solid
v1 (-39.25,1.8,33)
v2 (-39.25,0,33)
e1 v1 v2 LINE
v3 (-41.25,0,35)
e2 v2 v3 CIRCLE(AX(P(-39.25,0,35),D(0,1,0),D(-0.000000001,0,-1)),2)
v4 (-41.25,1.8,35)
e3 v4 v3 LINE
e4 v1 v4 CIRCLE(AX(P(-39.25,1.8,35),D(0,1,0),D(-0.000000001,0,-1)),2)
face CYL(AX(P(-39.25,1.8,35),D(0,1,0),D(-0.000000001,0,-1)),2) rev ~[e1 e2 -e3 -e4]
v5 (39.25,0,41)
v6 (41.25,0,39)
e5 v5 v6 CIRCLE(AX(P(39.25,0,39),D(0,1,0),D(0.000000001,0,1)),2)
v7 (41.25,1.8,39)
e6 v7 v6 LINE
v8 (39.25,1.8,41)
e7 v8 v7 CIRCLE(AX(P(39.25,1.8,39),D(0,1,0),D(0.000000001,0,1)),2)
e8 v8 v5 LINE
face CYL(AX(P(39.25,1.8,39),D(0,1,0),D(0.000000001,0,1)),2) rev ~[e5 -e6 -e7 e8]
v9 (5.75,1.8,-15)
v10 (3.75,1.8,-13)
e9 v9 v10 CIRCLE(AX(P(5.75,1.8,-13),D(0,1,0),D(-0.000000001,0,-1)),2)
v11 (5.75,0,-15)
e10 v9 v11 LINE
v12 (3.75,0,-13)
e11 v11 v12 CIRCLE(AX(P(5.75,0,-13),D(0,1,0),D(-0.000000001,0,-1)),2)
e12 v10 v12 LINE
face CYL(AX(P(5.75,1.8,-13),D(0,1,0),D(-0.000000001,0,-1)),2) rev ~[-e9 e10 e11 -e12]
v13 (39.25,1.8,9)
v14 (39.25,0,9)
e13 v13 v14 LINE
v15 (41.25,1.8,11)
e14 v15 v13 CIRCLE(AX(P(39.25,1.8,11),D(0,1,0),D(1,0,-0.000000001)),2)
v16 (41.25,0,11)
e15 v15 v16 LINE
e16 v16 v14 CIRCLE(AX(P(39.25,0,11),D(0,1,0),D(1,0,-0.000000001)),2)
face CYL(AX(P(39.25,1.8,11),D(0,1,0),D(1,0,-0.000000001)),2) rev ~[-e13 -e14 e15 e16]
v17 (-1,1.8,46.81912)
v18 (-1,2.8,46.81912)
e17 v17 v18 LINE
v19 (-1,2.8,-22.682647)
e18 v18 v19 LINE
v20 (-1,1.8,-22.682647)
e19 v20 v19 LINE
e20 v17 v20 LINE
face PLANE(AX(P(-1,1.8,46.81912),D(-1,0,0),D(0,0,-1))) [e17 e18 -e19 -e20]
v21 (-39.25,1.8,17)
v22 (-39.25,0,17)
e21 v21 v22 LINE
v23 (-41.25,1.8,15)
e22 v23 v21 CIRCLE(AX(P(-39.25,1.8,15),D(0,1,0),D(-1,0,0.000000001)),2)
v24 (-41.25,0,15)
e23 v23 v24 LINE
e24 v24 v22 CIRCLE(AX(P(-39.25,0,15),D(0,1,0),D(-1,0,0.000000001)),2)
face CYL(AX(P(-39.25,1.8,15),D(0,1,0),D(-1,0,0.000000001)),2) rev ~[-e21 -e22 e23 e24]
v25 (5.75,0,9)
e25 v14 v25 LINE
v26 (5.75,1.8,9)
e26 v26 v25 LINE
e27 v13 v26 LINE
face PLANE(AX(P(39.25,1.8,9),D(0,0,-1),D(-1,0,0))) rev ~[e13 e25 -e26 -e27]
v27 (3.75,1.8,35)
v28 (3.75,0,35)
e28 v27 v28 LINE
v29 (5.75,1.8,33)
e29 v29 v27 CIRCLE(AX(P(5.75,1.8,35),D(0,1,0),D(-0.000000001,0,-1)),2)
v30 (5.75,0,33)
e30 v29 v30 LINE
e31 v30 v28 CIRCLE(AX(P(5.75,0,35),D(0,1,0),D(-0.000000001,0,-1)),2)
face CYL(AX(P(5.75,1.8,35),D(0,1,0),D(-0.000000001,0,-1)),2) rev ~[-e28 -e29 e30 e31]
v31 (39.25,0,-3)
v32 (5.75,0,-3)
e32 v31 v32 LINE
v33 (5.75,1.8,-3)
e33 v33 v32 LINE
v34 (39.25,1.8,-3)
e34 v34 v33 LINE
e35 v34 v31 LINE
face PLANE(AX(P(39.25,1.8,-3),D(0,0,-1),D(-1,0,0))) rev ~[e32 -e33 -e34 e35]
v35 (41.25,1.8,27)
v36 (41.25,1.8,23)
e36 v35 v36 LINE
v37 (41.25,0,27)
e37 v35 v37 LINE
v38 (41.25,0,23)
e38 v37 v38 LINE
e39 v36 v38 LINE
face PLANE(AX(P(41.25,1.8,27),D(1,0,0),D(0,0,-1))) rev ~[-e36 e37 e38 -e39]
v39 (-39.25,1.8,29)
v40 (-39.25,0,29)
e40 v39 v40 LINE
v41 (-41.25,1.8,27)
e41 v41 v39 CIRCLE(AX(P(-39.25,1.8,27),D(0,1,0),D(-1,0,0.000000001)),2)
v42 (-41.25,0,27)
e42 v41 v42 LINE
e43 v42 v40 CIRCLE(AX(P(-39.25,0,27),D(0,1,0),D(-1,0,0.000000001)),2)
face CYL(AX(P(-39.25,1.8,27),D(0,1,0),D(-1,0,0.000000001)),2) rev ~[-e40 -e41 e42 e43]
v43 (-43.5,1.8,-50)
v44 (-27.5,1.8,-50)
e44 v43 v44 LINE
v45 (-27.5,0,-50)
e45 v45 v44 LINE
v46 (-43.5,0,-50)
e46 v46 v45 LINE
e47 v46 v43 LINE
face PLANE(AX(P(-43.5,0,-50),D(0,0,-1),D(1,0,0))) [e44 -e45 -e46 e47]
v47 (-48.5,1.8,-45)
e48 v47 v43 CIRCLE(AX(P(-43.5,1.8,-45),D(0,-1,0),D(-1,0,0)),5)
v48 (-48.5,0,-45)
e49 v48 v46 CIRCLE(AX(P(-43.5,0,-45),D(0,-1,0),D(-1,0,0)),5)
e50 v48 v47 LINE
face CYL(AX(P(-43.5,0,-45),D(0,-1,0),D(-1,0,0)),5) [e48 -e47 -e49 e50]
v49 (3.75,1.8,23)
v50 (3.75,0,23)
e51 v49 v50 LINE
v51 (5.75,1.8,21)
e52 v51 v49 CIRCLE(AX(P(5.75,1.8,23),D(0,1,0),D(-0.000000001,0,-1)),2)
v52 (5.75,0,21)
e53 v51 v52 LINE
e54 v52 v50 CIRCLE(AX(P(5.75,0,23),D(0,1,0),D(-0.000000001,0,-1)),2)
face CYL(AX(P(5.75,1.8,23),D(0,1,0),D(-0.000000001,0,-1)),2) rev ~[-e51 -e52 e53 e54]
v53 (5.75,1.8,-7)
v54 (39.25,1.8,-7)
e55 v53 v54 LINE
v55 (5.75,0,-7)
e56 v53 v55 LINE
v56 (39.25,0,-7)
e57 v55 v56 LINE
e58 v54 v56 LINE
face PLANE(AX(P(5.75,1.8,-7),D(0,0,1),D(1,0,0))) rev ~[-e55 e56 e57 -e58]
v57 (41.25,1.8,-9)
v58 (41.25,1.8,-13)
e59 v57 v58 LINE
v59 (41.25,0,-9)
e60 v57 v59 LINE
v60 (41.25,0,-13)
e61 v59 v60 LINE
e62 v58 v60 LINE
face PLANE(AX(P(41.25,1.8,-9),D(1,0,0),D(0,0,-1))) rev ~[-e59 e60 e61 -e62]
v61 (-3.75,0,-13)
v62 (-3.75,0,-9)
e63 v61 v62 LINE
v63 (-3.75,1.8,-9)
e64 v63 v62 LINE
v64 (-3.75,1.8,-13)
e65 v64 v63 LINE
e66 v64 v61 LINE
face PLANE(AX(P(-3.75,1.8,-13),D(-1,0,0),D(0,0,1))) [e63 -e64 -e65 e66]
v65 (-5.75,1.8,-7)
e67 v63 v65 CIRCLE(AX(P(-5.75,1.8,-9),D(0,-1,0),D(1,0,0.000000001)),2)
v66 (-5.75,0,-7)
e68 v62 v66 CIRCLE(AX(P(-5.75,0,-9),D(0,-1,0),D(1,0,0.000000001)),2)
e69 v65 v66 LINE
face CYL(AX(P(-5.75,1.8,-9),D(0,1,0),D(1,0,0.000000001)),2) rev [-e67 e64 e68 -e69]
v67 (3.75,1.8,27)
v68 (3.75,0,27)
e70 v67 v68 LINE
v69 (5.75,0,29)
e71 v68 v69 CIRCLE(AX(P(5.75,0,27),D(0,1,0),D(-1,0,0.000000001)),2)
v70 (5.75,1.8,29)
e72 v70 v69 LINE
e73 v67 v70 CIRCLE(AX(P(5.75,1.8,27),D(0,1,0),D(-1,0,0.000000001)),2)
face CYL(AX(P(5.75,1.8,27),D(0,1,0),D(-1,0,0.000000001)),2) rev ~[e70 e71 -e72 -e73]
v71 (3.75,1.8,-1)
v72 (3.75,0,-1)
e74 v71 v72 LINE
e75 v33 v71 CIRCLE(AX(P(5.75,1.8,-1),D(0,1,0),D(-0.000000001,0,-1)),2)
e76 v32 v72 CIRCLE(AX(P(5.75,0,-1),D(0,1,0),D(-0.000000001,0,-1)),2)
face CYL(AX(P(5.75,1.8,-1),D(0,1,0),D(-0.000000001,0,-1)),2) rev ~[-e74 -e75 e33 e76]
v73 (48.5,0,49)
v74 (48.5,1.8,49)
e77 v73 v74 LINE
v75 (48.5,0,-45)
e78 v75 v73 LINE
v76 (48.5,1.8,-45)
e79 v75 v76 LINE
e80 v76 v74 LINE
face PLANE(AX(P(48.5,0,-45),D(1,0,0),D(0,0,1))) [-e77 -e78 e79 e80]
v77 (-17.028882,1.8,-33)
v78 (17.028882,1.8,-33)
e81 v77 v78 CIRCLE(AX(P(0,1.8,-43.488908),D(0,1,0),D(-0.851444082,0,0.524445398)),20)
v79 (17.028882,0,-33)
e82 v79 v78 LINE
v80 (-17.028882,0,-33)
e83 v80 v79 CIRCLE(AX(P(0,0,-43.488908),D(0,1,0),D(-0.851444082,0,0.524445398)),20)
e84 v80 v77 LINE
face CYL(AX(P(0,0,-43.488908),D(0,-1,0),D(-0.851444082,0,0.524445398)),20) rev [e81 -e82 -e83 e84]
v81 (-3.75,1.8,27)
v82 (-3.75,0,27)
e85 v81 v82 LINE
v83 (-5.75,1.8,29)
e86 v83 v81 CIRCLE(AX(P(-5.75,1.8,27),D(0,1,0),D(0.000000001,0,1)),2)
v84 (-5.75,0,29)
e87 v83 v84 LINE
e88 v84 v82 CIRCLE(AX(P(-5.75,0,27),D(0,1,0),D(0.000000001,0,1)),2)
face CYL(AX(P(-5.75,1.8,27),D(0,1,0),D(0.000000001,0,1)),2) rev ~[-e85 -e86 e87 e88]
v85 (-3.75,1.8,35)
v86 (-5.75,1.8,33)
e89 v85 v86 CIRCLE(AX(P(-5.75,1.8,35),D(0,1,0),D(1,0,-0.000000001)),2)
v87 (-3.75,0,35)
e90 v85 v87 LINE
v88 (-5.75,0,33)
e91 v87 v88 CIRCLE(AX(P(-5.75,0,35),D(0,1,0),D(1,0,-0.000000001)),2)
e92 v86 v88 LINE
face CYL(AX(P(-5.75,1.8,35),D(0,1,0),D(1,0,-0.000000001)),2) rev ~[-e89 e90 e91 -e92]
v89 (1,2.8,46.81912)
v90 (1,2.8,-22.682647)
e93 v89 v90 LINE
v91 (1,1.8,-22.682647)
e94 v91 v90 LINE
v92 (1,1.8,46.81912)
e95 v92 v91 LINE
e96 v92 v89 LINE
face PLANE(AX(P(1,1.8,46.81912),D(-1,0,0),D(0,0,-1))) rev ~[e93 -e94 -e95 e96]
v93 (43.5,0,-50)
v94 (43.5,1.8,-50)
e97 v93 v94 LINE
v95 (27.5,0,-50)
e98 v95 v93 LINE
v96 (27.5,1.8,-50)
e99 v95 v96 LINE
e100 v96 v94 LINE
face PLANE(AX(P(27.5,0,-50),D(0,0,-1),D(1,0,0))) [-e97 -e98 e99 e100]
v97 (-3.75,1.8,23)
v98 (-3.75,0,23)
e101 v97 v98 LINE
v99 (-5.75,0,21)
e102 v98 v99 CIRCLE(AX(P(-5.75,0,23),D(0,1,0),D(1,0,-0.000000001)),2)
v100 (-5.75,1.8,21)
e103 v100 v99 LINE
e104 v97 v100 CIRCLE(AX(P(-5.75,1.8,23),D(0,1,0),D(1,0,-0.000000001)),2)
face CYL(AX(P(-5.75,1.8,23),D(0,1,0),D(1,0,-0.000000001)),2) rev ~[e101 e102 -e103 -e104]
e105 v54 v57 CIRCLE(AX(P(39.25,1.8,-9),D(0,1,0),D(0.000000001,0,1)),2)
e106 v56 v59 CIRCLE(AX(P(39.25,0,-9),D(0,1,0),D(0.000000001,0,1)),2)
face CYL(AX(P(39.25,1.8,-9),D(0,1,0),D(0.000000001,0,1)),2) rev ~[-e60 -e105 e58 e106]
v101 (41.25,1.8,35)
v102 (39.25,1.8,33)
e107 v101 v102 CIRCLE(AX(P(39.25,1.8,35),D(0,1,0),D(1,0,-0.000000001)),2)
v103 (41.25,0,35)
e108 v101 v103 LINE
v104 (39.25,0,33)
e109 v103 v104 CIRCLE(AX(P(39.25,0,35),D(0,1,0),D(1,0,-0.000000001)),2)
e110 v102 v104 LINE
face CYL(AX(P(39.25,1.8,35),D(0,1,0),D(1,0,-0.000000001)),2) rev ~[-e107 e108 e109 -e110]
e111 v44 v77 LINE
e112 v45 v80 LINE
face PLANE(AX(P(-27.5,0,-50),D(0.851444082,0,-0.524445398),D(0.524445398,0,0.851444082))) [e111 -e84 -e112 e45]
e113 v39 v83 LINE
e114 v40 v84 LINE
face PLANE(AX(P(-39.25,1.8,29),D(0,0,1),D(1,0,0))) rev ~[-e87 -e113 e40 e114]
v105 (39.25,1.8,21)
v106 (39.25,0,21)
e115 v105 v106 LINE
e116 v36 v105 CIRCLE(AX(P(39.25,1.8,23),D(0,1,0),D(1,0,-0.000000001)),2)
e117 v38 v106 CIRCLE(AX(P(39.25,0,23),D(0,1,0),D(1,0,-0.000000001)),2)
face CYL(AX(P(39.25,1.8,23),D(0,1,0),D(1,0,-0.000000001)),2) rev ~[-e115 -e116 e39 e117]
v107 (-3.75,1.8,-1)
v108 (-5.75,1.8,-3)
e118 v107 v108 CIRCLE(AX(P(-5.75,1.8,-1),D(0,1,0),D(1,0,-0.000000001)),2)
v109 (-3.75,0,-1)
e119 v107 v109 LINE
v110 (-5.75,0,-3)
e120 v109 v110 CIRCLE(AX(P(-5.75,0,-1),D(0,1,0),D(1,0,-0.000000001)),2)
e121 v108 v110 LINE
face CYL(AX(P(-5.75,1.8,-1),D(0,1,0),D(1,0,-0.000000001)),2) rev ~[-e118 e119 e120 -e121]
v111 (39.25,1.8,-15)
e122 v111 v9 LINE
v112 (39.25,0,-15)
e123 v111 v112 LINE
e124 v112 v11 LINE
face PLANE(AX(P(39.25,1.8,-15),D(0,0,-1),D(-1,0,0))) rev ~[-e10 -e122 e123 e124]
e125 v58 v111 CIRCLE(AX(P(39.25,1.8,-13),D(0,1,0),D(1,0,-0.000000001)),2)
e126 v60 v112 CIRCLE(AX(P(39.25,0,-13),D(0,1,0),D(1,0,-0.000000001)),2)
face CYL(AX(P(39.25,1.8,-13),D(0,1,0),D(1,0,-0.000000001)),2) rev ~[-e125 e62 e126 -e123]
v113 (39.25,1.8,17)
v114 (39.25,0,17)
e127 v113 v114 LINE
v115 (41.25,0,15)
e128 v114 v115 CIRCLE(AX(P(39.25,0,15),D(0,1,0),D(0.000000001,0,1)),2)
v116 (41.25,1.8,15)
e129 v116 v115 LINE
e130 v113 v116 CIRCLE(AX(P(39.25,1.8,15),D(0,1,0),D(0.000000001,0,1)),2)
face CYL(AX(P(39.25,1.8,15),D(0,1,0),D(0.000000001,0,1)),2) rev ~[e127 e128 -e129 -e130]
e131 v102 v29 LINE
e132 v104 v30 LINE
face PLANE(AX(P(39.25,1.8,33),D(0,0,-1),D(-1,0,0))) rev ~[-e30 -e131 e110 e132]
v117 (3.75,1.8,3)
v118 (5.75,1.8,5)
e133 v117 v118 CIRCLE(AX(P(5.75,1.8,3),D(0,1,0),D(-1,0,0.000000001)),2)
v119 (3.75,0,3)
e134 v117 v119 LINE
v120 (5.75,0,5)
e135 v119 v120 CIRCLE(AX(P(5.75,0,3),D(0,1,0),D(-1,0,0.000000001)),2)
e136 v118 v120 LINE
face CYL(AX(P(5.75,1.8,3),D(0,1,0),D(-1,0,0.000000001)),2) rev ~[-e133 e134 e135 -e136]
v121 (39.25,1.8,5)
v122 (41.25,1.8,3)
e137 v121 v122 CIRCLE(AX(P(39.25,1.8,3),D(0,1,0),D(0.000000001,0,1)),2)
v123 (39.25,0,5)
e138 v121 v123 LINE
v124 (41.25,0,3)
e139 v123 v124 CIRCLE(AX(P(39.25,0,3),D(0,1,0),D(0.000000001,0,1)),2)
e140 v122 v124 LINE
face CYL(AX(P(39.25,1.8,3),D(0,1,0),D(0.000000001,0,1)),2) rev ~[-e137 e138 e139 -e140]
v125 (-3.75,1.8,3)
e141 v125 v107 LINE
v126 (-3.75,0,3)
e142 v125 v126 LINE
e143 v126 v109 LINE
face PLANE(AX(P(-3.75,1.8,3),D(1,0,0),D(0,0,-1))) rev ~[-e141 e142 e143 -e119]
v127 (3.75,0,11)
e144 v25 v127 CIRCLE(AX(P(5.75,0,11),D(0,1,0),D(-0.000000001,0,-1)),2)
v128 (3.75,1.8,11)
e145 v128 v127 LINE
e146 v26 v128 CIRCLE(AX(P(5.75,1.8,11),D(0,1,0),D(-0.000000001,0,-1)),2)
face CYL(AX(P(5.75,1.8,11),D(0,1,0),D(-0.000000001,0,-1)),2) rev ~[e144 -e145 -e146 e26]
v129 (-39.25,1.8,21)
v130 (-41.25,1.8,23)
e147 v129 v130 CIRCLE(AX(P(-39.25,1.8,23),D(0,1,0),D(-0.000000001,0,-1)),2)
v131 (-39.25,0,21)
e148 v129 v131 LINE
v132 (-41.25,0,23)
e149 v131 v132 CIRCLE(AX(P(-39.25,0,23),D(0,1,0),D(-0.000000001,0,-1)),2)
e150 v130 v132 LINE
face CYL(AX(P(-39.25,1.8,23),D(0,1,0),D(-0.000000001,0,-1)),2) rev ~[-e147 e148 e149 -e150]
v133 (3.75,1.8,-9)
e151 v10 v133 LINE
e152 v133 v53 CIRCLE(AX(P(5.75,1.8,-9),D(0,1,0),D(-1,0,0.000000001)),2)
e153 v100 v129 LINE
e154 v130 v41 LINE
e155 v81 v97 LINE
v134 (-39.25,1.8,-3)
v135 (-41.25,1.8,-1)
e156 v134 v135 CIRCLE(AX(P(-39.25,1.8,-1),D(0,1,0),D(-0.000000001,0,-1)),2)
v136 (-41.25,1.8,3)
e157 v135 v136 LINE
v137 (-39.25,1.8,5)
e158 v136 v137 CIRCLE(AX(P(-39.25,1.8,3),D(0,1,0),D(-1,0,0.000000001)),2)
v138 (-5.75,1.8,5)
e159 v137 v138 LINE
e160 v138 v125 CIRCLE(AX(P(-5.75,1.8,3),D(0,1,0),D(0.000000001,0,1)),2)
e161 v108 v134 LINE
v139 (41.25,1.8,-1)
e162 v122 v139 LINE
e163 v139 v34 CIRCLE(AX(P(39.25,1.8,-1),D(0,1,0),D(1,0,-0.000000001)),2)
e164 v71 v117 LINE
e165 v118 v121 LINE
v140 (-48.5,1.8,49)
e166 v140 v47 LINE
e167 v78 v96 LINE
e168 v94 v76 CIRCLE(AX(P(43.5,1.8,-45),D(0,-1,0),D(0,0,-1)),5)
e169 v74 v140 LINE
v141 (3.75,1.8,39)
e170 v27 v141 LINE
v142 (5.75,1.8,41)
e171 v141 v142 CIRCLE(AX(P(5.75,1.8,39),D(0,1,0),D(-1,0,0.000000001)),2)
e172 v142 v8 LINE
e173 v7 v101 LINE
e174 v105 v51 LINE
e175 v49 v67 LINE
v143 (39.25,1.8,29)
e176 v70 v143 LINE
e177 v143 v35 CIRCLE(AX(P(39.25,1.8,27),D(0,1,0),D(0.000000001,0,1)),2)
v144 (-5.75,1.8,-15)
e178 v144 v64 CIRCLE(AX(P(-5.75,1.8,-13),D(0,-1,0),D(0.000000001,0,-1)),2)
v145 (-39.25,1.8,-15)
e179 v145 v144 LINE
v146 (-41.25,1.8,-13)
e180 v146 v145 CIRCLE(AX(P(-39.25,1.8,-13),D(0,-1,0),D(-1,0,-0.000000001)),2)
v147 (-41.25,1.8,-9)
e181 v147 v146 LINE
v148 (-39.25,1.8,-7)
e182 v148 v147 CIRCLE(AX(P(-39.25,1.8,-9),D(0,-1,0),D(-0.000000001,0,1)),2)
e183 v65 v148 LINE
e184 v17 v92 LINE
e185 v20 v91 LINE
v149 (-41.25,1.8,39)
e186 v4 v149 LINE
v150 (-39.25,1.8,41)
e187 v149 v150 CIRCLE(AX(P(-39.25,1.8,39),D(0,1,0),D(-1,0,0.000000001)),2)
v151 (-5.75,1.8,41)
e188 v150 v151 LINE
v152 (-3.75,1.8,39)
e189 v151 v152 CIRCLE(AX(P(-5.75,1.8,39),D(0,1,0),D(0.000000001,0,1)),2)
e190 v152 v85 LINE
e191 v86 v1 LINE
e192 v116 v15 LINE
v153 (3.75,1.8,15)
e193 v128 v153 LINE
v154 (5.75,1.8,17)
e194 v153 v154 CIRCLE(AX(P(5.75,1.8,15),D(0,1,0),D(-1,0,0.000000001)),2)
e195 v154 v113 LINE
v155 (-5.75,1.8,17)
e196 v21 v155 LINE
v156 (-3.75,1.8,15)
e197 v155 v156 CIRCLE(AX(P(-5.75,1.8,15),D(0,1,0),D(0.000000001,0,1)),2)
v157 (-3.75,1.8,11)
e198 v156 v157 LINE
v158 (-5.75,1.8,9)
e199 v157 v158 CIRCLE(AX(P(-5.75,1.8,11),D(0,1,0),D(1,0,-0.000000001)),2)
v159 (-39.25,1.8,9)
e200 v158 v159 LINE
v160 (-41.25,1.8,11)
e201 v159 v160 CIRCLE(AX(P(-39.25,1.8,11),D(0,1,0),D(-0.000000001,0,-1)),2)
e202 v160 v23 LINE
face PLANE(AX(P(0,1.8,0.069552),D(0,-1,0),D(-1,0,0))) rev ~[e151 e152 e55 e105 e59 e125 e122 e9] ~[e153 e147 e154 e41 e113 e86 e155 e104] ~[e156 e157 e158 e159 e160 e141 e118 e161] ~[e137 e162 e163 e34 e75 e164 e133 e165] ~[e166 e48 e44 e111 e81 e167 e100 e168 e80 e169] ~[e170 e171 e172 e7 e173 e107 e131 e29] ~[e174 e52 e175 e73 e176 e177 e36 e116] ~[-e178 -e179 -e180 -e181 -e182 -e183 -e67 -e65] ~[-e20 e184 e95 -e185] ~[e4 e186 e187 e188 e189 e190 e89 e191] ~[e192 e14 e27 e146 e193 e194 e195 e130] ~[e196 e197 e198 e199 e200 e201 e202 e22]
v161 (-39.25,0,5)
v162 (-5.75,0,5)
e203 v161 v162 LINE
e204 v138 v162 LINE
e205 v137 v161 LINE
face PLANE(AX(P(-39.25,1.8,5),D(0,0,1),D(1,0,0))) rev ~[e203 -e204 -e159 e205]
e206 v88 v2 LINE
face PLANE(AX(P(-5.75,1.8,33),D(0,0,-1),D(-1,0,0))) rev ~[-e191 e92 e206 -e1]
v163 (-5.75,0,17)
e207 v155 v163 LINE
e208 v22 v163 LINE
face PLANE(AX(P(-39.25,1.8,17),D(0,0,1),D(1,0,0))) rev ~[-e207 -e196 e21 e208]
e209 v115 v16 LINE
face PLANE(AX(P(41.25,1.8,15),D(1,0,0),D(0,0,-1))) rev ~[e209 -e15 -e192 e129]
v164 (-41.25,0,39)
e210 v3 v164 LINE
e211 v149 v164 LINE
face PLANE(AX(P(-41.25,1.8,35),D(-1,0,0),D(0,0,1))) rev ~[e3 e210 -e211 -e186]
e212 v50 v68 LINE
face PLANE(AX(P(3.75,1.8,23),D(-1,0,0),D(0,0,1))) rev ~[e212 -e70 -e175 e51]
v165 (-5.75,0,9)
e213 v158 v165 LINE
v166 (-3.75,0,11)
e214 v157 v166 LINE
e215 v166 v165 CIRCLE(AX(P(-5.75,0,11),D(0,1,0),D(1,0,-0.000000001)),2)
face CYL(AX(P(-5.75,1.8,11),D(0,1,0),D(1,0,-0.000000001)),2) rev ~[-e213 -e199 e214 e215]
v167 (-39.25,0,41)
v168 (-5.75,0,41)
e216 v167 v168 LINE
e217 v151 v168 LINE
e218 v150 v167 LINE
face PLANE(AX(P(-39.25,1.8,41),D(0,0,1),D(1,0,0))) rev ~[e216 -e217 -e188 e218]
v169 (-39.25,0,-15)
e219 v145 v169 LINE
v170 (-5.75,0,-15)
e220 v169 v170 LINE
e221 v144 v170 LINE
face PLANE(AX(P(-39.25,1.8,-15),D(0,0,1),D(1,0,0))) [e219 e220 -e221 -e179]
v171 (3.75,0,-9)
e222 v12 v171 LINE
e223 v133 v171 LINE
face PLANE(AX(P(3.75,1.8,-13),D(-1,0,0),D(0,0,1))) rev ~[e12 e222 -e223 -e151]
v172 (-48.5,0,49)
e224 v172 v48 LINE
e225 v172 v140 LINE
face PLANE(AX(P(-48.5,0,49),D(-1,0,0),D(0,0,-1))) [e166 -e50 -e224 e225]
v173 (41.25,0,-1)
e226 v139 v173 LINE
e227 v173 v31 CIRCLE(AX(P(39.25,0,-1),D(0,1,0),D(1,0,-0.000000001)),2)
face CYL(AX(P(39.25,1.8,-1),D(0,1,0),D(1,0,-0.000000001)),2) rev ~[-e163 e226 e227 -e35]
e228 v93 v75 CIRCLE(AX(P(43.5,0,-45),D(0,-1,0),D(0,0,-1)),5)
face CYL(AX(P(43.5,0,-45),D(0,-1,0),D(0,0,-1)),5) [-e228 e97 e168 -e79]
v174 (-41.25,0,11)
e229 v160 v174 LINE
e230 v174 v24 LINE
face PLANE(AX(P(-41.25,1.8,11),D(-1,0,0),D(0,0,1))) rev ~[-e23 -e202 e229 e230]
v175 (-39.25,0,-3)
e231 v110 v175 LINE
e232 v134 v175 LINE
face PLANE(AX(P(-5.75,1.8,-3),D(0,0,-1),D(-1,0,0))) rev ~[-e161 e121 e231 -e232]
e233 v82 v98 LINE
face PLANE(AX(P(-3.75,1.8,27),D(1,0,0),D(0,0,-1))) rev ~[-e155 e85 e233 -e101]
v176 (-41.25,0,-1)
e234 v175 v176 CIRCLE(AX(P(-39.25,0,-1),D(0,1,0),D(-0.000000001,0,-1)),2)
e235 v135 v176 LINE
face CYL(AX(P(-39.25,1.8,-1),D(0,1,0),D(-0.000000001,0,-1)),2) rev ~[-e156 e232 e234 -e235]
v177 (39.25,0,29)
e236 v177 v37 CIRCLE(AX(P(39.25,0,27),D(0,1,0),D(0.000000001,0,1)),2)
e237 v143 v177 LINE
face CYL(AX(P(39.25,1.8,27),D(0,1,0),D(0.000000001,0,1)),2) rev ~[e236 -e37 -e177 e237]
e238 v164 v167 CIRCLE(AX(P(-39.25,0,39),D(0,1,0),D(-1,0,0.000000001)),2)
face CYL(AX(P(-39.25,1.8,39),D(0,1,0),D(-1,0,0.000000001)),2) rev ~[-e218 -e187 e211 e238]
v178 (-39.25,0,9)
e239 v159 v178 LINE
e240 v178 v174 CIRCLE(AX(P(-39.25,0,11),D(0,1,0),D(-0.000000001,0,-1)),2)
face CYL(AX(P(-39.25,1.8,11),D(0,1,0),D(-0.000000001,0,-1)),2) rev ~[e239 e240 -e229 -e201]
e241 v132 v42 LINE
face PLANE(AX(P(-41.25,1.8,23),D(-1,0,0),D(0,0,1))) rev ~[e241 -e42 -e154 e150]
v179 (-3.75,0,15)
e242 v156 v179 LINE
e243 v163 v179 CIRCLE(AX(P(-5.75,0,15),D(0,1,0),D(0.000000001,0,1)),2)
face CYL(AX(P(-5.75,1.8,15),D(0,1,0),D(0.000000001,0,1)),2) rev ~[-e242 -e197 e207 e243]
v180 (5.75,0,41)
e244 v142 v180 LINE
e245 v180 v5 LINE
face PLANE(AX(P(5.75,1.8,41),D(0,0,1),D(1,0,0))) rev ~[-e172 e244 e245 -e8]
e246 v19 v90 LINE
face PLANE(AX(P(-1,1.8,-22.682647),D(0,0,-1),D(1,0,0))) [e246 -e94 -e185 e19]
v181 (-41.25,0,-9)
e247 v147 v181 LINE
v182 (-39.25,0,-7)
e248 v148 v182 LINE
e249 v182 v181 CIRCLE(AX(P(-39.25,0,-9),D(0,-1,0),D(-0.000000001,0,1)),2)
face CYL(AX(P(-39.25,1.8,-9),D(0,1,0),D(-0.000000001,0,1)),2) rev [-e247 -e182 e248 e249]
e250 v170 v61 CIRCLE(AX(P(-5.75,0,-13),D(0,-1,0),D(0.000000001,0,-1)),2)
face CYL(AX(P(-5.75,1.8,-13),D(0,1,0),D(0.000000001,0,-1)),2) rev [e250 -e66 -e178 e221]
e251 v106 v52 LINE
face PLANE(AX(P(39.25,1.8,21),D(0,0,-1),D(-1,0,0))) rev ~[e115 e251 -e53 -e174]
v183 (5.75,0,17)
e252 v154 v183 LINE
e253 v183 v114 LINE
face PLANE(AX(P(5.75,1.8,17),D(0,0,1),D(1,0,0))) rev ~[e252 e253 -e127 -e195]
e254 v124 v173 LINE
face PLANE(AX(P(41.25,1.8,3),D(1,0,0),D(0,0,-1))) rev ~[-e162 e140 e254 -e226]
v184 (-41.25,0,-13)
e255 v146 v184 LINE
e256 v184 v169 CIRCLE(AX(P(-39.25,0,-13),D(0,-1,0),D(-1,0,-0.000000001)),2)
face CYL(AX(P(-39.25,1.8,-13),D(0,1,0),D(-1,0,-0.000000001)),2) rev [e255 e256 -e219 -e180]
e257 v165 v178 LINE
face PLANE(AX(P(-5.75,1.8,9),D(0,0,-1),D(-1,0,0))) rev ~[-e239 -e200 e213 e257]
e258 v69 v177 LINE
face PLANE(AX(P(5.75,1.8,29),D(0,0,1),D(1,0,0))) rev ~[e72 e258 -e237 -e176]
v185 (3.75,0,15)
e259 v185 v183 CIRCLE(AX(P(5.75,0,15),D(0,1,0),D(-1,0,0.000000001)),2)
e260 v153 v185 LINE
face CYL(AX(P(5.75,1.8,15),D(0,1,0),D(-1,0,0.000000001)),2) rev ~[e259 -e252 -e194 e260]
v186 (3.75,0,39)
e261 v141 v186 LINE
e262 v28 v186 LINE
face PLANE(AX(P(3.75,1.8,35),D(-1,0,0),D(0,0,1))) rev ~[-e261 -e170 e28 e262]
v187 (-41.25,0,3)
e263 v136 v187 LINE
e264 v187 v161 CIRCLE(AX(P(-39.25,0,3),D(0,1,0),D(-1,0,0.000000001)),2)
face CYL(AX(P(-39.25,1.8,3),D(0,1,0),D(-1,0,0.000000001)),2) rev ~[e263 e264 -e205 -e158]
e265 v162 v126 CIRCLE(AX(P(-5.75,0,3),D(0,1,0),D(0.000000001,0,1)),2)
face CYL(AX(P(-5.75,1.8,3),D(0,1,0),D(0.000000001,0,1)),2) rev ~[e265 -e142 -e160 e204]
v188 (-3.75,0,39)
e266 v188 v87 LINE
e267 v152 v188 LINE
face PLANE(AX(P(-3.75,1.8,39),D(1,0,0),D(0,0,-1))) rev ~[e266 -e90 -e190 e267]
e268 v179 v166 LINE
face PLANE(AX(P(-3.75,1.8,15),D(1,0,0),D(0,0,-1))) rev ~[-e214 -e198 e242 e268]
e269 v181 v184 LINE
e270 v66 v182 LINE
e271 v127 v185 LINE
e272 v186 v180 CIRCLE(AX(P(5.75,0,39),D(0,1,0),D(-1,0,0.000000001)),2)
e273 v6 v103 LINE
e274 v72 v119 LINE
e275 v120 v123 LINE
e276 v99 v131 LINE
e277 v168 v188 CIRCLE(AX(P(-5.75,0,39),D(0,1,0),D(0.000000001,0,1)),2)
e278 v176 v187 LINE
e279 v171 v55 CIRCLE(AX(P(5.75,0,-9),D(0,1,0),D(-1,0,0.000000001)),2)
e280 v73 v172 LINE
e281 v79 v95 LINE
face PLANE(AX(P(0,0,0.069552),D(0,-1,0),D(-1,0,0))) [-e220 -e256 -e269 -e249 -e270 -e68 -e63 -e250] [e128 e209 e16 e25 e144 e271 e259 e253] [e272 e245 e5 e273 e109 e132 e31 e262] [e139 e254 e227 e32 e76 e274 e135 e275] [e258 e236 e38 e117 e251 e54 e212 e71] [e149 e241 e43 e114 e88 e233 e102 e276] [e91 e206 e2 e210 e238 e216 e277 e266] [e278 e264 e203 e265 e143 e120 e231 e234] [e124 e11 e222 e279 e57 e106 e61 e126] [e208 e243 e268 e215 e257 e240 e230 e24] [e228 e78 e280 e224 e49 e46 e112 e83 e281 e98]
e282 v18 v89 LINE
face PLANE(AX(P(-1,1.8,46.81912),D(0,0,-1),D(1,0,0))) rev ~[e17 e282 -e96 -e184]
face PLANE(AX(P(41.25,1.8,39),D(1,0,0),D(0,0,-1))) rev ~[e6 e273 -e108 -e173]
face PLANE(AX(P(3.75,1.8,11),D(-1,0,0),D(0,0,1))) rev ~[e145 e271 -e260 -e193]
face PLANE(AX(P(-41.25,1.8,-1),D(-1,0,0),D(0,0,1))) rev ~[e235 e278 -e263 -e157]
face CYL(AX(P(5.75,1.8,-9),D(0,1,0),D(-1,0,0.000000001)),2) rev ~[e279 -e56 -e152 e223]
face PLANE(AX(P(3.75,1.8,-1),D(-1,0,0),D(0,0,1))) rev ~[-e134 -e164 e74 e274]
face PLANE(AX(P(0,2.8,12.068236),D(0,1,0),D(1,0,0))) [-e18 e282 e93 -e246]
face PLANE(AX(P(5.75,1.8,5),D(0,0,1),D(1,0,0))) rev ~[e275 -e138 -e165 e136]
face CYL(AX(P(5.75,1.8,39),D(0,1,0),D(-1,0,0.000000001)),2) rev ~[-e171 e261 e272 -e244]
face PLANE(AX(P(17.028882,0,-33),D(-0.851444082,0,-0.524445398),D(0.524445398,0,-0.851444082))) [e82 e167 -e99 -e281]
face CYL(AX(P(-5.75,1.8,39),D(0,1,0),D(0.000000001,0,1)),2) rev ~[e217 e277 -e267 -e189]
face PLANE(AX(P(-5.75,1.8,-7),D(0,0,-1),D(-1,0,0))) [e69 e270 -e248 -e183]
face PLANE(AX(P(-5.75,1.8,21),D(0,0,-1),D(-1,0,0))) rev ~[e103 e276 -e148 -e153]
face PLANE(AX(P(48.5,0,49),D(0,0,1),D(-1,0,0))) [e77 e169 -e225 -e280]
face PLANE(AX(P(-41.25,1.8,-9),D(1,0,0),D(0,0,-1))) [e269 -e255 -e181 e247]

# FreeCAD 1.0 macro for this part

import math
import FreeCAD as App
import Part
import Sketcher

V = App.Vector
Q = App.Units.Quantity


def add_polygon(sketch, points):
    """Adds a closed chain of lines whose ends are joined by coincident constraints."""
    first, n = sketch.GeometryCount, len(points)
    for a, b in zip(points, points[1:] + points[:1]):
        sketch.addGeometry(Part.LineSegment(App.Vector(*a, 0), App.Vector(*b, 0)), False)
    for i in range(n):
        sketch.addConstraint(Sketcher.Constraint("Coincident", first + i, 2, first + (i + 1) % n, 1))

doc = App.newDocument("Part")
body = doc.addObject("PartDesign::Body", "Body")

# Sketch on XZ plane
sketch1 = doc.addObject("Sketcher::SketchObject", "Sketch")
body.addObject(sketch1)
sketch1.AttachmentSupport = (doc.XZ_Plane, [""])
sketch1.MapMode = "FlatFace"
sketch1.addGeometry(Part.LineSegment(V(-28, -50, 0), V(-44, -50, 0)), False)
sketch1.addGeometry(Part.ArcOfCircle(Part.Circle(V(-44, -45, 0), V(0, 0, 1), 5), math.radians(180), math.radians(270)), False)
sketch1.addGeometry(Part.LineSegment(V(-48, -45, 0), V(-48, 49, 0)), False)
sketch1.addGeometry(Part.LineSegment(V(-48, 49, 0), V(48, 49, 0)), False)
sketch1.addGeometry(Part.LineSegment(V(48, 49, 0), V(48, -45, 0)), False)
sketch1.addGeometry(Part.ArcOfCircle(Part.Circle(V(44, -45, 0), V(0, 0, 1), 5), math.radians(-90), math.radians(0)), False)
sketch1.addGeometry(Part.LineSegment(V(44, -50, 0), V(28, -50, 0)), False)
sketch1.addGeometry(Part.LineSegment(V(28, -50, 0), V(17, -33, 0)), False)
sketch1.addGeometry(Part.ArcOfCircle(Part.Circle(V(0, -43, 0), V(0, 0, 1), 20), math.radians(32), math.radians(148)), False)
sketch1.addGeometry(Part.LineSegment(V(-17, -33, 0), V(-28, -50, 0)), False)
sketch1.addConstraint(Sketcher.Constraint("Tangent", 0, 2, 1, 2))
sketch1.addConstraint(Sketcher.Constraint("Tangent", 1, 1, 2, 1))
sketch1.addConstraint(Sketcher.Constraint("Coincident", 2, 2, 3, 1))
sketch1.addConstraint(Sketcher.Constraint("Coincident", 3, 2, 4, 1))
sketch1.addConstraint(Sketcher.Constraint("Tangent", 4, 2, 5, 2))
sketch1.addConstraint(Sketcher.Constraint("Tangent", 5, 1, 6, 1))
sketch1.addConstraint(Sketcher.Constraint("Coincident", 6, 2, 7, 1))
sketch1.addConstraint(Sketcher.Constraint("Tangent", 7, 2, 8, 1))
sketch1.addConstraint(Sketcher.Constraint("Tangent", 8, 2, 9, 1))
sketch1.addConstraint(Sketcher.Constraint("Coincident", 9, 2, 0, 1))
sketch1.addConstraint(Sketcher.Constraint("Horizontal", 0))
sketch1.addConstraint(Sketcher.Constraint("Vertical", 2))
sketch1.addConstraint(Sketcher.Constraint("Horizontal", 3))
sketch1.addConstraint(Sketcher.Constraint("Vertical", 4))
sketch1.addConstraint(Sketcher.Constraint("Horizontal", 6))
sketch1.addConstraint(Sketcher.Constraint("Equal", 1, 5))
sketch1.addConstraint(Sketcher.Constraint("Symmetric", 1, 3, 5, 3, -2))
sketch1.addConstraint(Sketcher.Constraint("Symmetric", 7, 2, 8, 2, -2))
sketch1.addConstraint(Sketcher.Constraint("Radius", 1, Q("5 mm")))
sketch1.addConstraint(Sketcher.Constraint("Radius", 8, Q("20 mm")))
sketch1.addConstraint(Sketcher.Constraint("DistanceX", 0, 2, 0, 1, Q("16 mm")))
sketch1.addConstraint(Sketcher.Constraint("DistanceX", 3, 1, 3, 2, Q("97 mm")))
sketch1.addConstraint(Sketcher.Constraint("DistanceY", 2, 1, 2, 2, Q("94 mm")))
sketch1.addConstraint(Sketcher.Constraint("DistanceY", 1, 3, -1, 1, Q("45 mm")))
sketch1.addConstraint(Sketcher.Constraint("DistanceY", 7, 2, -1, 1, Q("33 mm")))
pad1 = doc.addObject("PartDesign::Pad", "Pad")
body.addObject(pad1)
pad1.Profile = sketch1
pad1.Length = 1.8
pad1.Reversed = True

# Sketch on XZ plane
sketch2 = doc.addObject("Sketcher::SketchObject", "Sketch001")
body.addObject(sketch2)
sketch2.AttachmentSupport = (doc.XZ_Plane, [""])
sketch2.MapMode = "FlatFace"
sketch2.AttachmentOffset = App.Placement(V(0, 0, -1.8), App.Rotation())
sketch2.addGeometry(Part.LineSegment(V(-5.8, -15, 0), V(-39.2, -15, 0)), False)
sketch2.addGeometry(Part.ArcOfCircle(Part.Circle(V(-39.2, -13, 0), V(0, 0, 1), 2), math.radians(-180), math.radians(-90)), False)
sketch2.addGeometry(Part.LineSegment(V(-41.2, -13, 0), V(-41.2, -9, 0)), False)
sketch2.addGeometry(Part.ArcOfCircle(Part.Circle(V(-39.2, -9, 0), V(0, 0, 1), 2), math.radians(90), math.radians(180)), False)
sketch2.addGeometry(Part.LineSegment(V(-39.2, -7, 0), V(-5.8, -7, 0)), False)
sketch2.addGeometry(Part.ArcOfCircle(Part.Circle(V(-5.8, -9, 0), V(0, 0, 1), 2), math.radians(0), math.radians(90)), False)
sketch2.addGeometry(Part.LineSegment(V(-3.8, -9, 0), V(-3.8, -13, 0)), False)
sketch2.addGeometry(Part.ArcOfCircle(Part.Circle(V(-5.8, -13, 0), V(0, 0, 1), 2), math.radians(-90), math.radians(0)), False)
sketch2.addGeometry(Part.LineSegment(V(3.8, -13, 0), V(3.8, -9, 0)), False)
sketch2.addGeometry(Part.ArcOfCircle(Part.Circle(V(5.8, -9, 0), V(0, 0, 1), 2), math.radians(90), math.radians(180)), False)
sketch2.addGeometry(Part.LineSegment(V(5.8, -7, 0), V(39.2, -7, 0)), False)
sketch2.addGeometry(Part.ArcOfCircle(Part.Circle(V(39.2, -9, 0), V(0, 0, 1), 2), math.radians(0), math.radians(90)), False)
sketch2.addGeometry(Part.LineSegment(V(41.2, -9, 0), V(41.2, -13, 0)), False)
sketch2.addGeometry(Part.ArcOfCircle(Part.Circle(V(39.2, -13, 0), V(0, 0, 1), 2), math.radians(-90), math.radians(0)), False)
sketch2.addGeometry(Part.LineSegment(V(39.2, -15, 0), V(5.8, -15, 0)), False)
sketch2.addGeometry(Part.ArcOfCircle(Part.Circle(V(5.8, -13, 0), V(0, 0, 1), 2), math.radians(-180), math.radians(-90)), False)
sketch2.addGeometry(Part.LineSegment(V(3.8, -1, 0), V(3.8, 3, 0)), False)
sketch2.addGeometry(Part.ArcOfCircle(Part.Circle(V(5.8, 3, 0), V(0, 0, 1), 2), math.radians(90), math.radians(180)), False)
sketch2.addGeometry(Part.LineSegment(V(5.8, 5, 0), V(39.2, 5, 0)), False)
sketch2.addGeometry(Part.ArcOfCircle(Part.Circle(V(39.2, 3, 0), V(0, 0, 1), 2), math.radians(0), math.radians(90)), False)
sketch2.addGeometry(Part.LineSegment(V(41.2, 3, 0), V(41.2, -1, 0)), False)
sketch2.addGeometry(Part.ArcOfCircle(Part.Circle(V(39.2, -1, 0), V(0, 0, 1), 2), math.radians(-90), math.radians(0)), False)
sketch2.addGeometry(Part.LineSegment(V(39.2, -3, 0), V(5.8, -3, 0)), False)
sketch2.addGeometry(Part.ArcOfCircle(Part.Circle(V(5.8, -1, 0), V(0, 0, 1), 2), math.radians(-180), math.radians(-90)), False)
sketch2.addGeometry(Part.LineSegment(V(3.8, 11, 0), V(3.8, 15, 0)), False)
sketch2.addGeometry(Part.ArcOfCircle(Part.Circle(V(5.8, 15, 0), V(0, 0, 1), 2), math.radians(90), math.radians(180)), False)
sketch2.addGeometry(Part.LineSegment(V(5.8, 17, 0), V(39.2, 17, 0)), False)
sketch2.addGeometry(Part.ArcOfCircle(Part.Circle(V(39.2, 15, 0), V(0, 0, 1), 2), math.radians(0), math.radians(90)), False)
sketch2.addGeometry(Part.LineSegment(V(41.2, 15, 0), V(41.2, 11, 0)), False)
sketch2.addGeometry(Part.ArcOfCircle(Part.Circle(V(39.2, 11, 0), V(0, 0, 1), 2), math.radians(-90), math.radians(0)), False)
sketch2.addGeometry(Part.LineSegment(V(39.2, 9, 0), V(5.8, 9, 0)), False)
sketch2.addGeometry(Part.ArcOfCircle(Part.Circle(V(5.8, 11, 0), V(0, 0, 1), 2), math.radians(-180), math.radians(-90)), False)
sketch2.addGeometry(Part.LineSegment(V(3.8, 23, 0), V(3.8, 27, 0)), False)
sketch2.addGeometry(Part.ArcOfCircle(Part.Circle(V(5.8, 27, 0), V(0, 0, 1), 2), math.radians(90), math.radians(180)), False)
sketch2.addGeometry(Part.LineSegment(V(5.8, 29, 0), V(39.2, 29, 0)), False)
sketch2.addGeometry(Part.ArcOfCircle(Part.Circle(V(39.2, 27, 0), V(0, 0, 1), 2), math.radians(0), math.radians(90)), False)
sketch2.addGeometry(Part.LineSegment(V(41.2, 27, 0), V(41.2, 23, 0)), False)
sketch2.addGeometry(Part.ArcOfCircle(Part.Circle(V(39.2, 23, 0), V(0, 0, 1), 2), math.radians(-90), math.radians(0)), False)
sketch2.addGeometry(Part.LineSegment(V(39.2, 21, 0), V(5.8, 21, 0)), False)
sketch2.addGeometry(Part.ArcOfCircle(Part.Circle(V(5.8, 23, 0), V(0, 0, 1), 2), math.radians(-180), math.radians(-90)), False)
sketch2.addGeometry(Part.LineSegment(V(3.8, 35, 0), V(3.8, 39, 0)), False)
sketch2.addGeometry(Part.ArcOfCircle(Part.Circle(V(5.8, 39, 0), V(0, 0, 1), 2), math.radians(90), math.radians(180)), False)
sketch2.addGeometry(Part.LineSegment(V(5.8, 41, 0), V(39.2, 41, 0)), False)
sketch2.addGeometry(Part.ArcOfCircle(Part.Circle(V(39.2, 39, 0), V(0, 0, 1), 2), math.radians(0), math.radians(90)), False)
sketch2.addGeometry(Part.LineSegment(V(41.2, 39, 0), V(41.2, 35, 0)), False)
sketch2.addGeometry(Part.ArcOfCircle(Part.Circle(V(39.2, 35, 0), V(0, 0, 1), 2), math.radians(-90), math.radians(0)), False)
sketch2.addGeometry(Part.LineSegment(V(39.2, 33, 0), V(5.8, 33, 0)), False)
sketch2.addGeometry(Part.ArcOfCircle(Part.Circle(V(5.8, 35, 0), V(0, 0, 1), 2), math.radians(-180), math.radians(-90)), False)
sketch2.addGeometry(Part.LineSegment(V(-41.2, -1, 0), V(-41.2, 3, 0)), False)
sketch2.addGeometry(Part.ArcOfCircle(Part.Circle(V(-39.2, 3, 0), V(0, 0, 1), 2), math.radians(90), math.radians(180)), False)
sketch2.addGeometry(Part.LineSegment(V(-39.2, 5, 0), V(-5.8, 5, 0)), False)
sketch2.addGeometry(Part.ArcOfCircle(Part.Circle(V(-5.8, 3, 0), V(0, 0, 1), 2), math.radians(0), math.radians(90)), False)
sketch2.addGeometry(Part.LineSegment(V(-3.8, 3, 0), V(-3.8, -1, 0)), False)
sketch2.addGeometry(Part.ArcOfCircle(Part.Circle(V(-5.8, -1, 0), V(0, 0, 1), 2), math.radians(-90), math.radians(0)), False)
sketch2.addGeometry(Part.LineSegment(V(-5.8, -3, 0), V(-39.2, -3, 0)), False)
sketch2.addGeometry(Part.ArcOfCircle(Part.Circle(V(-39.2, -1, 0), V(0, 0, 1), 2), math.radians(-180), math.radians(-90)), False)
sketch2.addGeometry(Part.LineSegment(V(-41.2, 11, 0), V(-41.2, 15, 0)), False)
sketch2.addGeometry(Part.ArcOfCircle(Part.Circle(V(-39.2, 15, 0), V(0, 0, 1), 2), math.radians(90), math.radians(180)), False)
sketch2.addGeometry(Part.LineSegment(V(-39.2, 17, 0), V(-5.8, 17, 0)), False)
sketch2.addGeometry(Part.ArcOfCircle(Part.Circle(V(-5.8, 15, 0), V(0, 0, 1), 2), math.radians(0), math.radians(90)), False)
sketch2.addGeometry(Part.LineSegment(V(-3.8, 15, 0), V(-3.8, 11, 0)), False)
sketch2.addGeometry(Part.ArcOfCircle(Part.Circle(V(-5.8, 11, 0), V(0, 0, 1), 2), math.radians(-90), math.radians(0)), False)
sketch2.addGeometry(Part.LineSegment(V(-5.8, 9, 0), V(-39.2, 9, 0)), False)
sketch2.addGeometry(Part.ArcOfCircle(Part.Circle(V(-39.2, 11, 0), V(0, 0, 1), 2), math.radians(-180), math.radians(-90)), False)
sketch2.addGeometry(Part.LineSegment(V(-41.2, 23, 0), V(-41.2, 27, 0)), False)
sketch2.addGeometry(Part.ArcOfCircle(Part.Circle(V(-39.2, 27, 0), V(0, 0, 1), 2), math.radians(90), math.radians(180)), False)
sketch2.addGeometry(Part.LineSegment(V(-39.2, 29, 0), V(-5.8, 29, 0)), False)
sketch2.addGeometry(Part.ArcOfCircle(Part.Circle(V(-5.8, 27, 0), V(0, 0, 1), 2), math.radians(0), math.radians(90)), False)
sketch2.addGeometry(Part.LineSegment(V(-3.8, 27, 0), V(-3.8, 23, 0)), False)
sketch2.addGeometry(Part.ArcOfCircle(Part.Circle(V(-5.8, 23, 0), V(0, 0, 1), 2), math.radians(-90), math.radians(0)), False)
sketch2.addGeometry(Part.LineSegment(V(-5.8, 21, 0), V(-39.2, 21, 0)), False)
sketch2.addGeometry(Part.ArcOfCircle(Part.Circle(V(-39.2, 23, 0), V(0, 0, 1), 2), math.radians(-180), math.radians(-90)), False)
sketch2.addGeometry(Part.LineSegment(V(-41.2, 35, 0), V(-41.2, 39, 0)), False)
sketch2.addGeometry(Part.ArcOfCircle(Part.Circle(V(-39.2, 39, 0), V(0, 0, 1), 2), math.radians(90), math.radians(180)), False)
sketch2.addGeometry(Part.LineSegment(V(-39.2, 41, 0), V(-5.8, 41, 0)), False)
sketch2.addGeometry(Part.ArcOfCircle(Part.Circle(V(-5.8, 39, 0), V(0, 0, 1), 2), math.radians(0), math.radians(90)), False)
sketch2.addGeometry(Part.LineSegment(V(-3.8, 39, 0), V(-3.8, 35, 0)), False)
sketch2.addGeometry(Part.ArcOfCircle(Part.Circle(V(-5.8, 35, 0), V(0, 0, 1), 2), math.radians(-90), math.radians(0)), False)
sketch2.addGeometry(Part.LineSegment(V(-5.8, 33, 0), V(-39.2, 33, 0)), False)
sketch2.addGeometry(Part.ArcOfCircle(Part.Circle(V(-39.2, 35, 0), V(0, 0, 1), 2), math.radians(-180), math.radians(-90)), False)
sketch2.addConstraint(Sketcher.Constraint("Tangent", 0, 2, 1, 2))
sketch2.addConstraint(Sketcher.Constraint("Tangent", 1, 1, 2, 1))
sketch2.addConstraint(Sketcher.Constraint("Tangent", 2, 2, 3, 2))
sketch2.addConstraint(Sketcher.Constraint("Tangent", 3, 1, 4, 1))
sketch2.addConstraint(Sketcher.Constraint("Tangent", 4, 2, 5, 2))
sketch2.addConstraint(Sketcher.Constraint("Tangent", 5, 1, 6, 1))
sketch2.addConstraint(Sketcher.Constraint("Tangent", 6, 2, 7, 2))
sketch2.addConstraint(Sketcher.Constraint("Tangent", 7, 1, 0, 1))
sketch2.addConstraint(Sketcher.Constraint("Tangent", 8, 2, 9, 2))
sketch2.addConstraint(Sketcher.Constraint("Tangent", 9, 1, 10, 1))
sketch2.addConstraint(Sketcher.Constraint("Tangent", 10, 2, 11, 2))
sketch2.addConstraint(Sketcher.Constraint("Tangent", 11, 1, 12, 1))
sketch2.addConstraint(Sketcher.Constraint("Tangent", 12, 2, 13, 2))
sketch2.addConstraint(Sketcher.Constraint("Tangent", 13, 1, 14, 1))
sketch2.addConstraint(Sketcher.Constraint("Tangent", 14, 2, 15, 2))
sketch2.addConstraint(Sketcher.Constraint("Tangent", 15, 1, 8, 1))
sketch2.addConstraint(Sketcher.Constraint("Tangent", 16, 2, 17, 2))
sketch2.addConstraint(Sketcher.Constraint("Tangent", 17, 1, 18, 1))
sketch2.addConstraint(Sketcher.Constraint("Tangent", 18, 2, 19, 2))
sketch2.addConstraint(Sketcher.Constraint("Tangent", 19, 1, 20, 1))
sketch2.addConstraint(Sketcher.Constraint("Tangent", 20, 2, 21, 2))
sketch2.addConstraint(Sketcher.Constraint("Tangent", 21, 1, 22, 1))
sketch2.addConstraint(Sketcher.Constraint("Tangent", 22, 2, 23, 2))
sketch2.addConstraint(Sketcher.Constraint("Tangent", 23, 1, 16, 1))
sketch2.addConstraint(Sketcher.Constraint("Tangent", 24, 2, 25, 2))
sketch2.addConstraint(Sketcher.Constraint("Tangent", 25, 1, 26, 1))
sketch2.addConstraint(Sketcher.Constraint("Tangent", 26, 2, 27, 2))
sketch2.addConstraint(Sketcher.Constraint("Tangent", 27, 1, 28, 1))
sketch2.addConstraint(Sketcher.Constraint("Tangent", 28, 2, 29, 2))
sketch2.addConstraint(Sketcher.Constraint("Tangent", 29, 1, 30, 1))
sketch2.addConstraint(Sketcher.Constraint("Tangent", 30, 2, 31, 2))
sketch2.addConstraint(Sketcher.Constraint("Tangent", 31, 1, 24, 1))
sketch2.addConstraint(Sketcher.Constraint("Tangent", 32, 2, 33, 2))
sketch2.addConstraint(Sketcher.Constraint("Tangent", 33, 1, 34, 1))
sketch2.addConstraint(Sketcher.Constraint("Tangent", 34, 2, 35, 2))
sketch2.addConstraint(Sketcher.Constraint("Tangent", 35, 1, 36, 1))
sketch2.addConstraint(Sketcher.Constraint("Tangent", 36, 2, 37, 2))
sketch2.addConstraint(Sketcher.Constraint("Tangent", 37, 1, 38, 1))
sketch2.addConstraint(Sketcher.Constraint("Tangent", 38, 2, 39, 2))
sketch2.addConstraint(Sketcher.Constraint("Tangent", 39, 1, 32, 1))
sketch2.addConstraint(Sketcher.Constraint("Tangent", 40, 2, 41, 2))
sketch2.addConstraint(Sketcher.Constraint("Tangent", 41, 1, 42, 1))
sketch2.addConstraint(Sketcher.Constraint("Tangent", 42, 2, 43, 2))
sketch2.addConstraint(Sketcher.Constraint("Tangent", 43, 1, 44, 1))
sketch2.addConstraint(Sketcher.Constraint("Tangent", 44, 2, 45, 2))
sketch2.addConstraint(Sketcher.Constraint("Tangent", 45, 1, 46, 1))
sketch2.addConstraint(Sketcher.Constraint("Tangent", 46, 2, 47, 2))
sketch2.addConstraint(Sketcher.Constraint("Tangent", 47, 1, 40, 1))
sketch2.addConstraint(Sketcher.Constraint("Tangent", 48, 2, 49, 2))
sketch2.addConstraint(Sketcher.Constraint("Tangent", 49, 1, 50, 1))
sketch2.addConstraint(Sketcher.Constraint("Tangent", 50, 2, 51, 2))
sketch2.addConstraint(Sketcher.Constraint("Tangent", 51, 1, 52, 1))
sketch2.addConstraint(Sketcher.Constraint("Tangent", 52, 2, 53, 2))
sketch2.addConstraint(Sketcher.Constraint("Tangent", 53, 1, 54, 1))
sketch2.addConstraint(Sketcher.Constraint("Tangent", 54, 2, 55, 2))
sketch2.addConstraint(Sketcher.Constraint("Tangent", 55, 1, 48, 1))
sketch2.addConstraint(Sketcher.Constraint("Tangent", 56, 2, 57, 2))
sketch2.addConstraint(Sketcher.Constraint("Tangent", 57, 1, 58, 1))
sketch2.addConstraint(Sketcher.Constraint("Tangent", 58, 2, 59, 2))
sketch2.addConstraint(Sketcher.Constraint("Tangent", 59, 1, 60, 1))
sketch2.addConstraint(Sketcher.Constraint("Tangent", 60, 2, 61, 2))
sketch2.addConstraint(Sketcher.Constraint("Tangent", 61, 1, 62, 1))
sketch2.addConstraint(Sketcher.Constraint("Tangent", 62, 2, 63, 2))
sketch2.addConstraint(Sketcher.Constraint("Tangent", 63, 1, 56, 1))
sketch2.addConstraint(Sketcher.Constraint("Tangent", 64, 2, 65, 2))
sketch2.addConstraint(Sketcher.Constraint("Tangent", 65, 1, 66, 1))
sketch2.addConstraint(Sketcher.Constraint("Tangent", 66, 2, 67, 2))
sketch2.addConstraint(Sketcher.Constraint("Tangent", 67, 1, 68, 1))
sketch2.addConstraint(Sketcher.Constraint("Tangent", 68, 2, 69, 2))
sketch2.addConstraint(Sketcher.Constraint("Tangent", 69, 1, 70, 1))
sketch2.addConstraint(Sketcher.Constraint("Tangent", 70, 2, 71, 2))
sketch2.addConstraint(Sketcher.Constraint("Tangent", 71, 1, 64, 1))
sketch2.addConstraint(Sketcher.Constraint("Tangent", 72, 2, 73, 2))
sketch2.addConstraint(Sketcher.Constraint("Tangent", 73, 1, 74, 1))
sketch2.addConstraint(Sketcher.Constraint("Tangent", 74, 2, 75, 2))
sketch2.addConstraint(Sketcher.Constraint("Tangent", 75, 1, 76, 1))
sketch2.addConstraint(Sketcher.Constraint("Tangent", 76, 2, 77, 2))
sketch2.addConstraint(Sketcher.Constraint("Tangent", 77, 1, 78, 1))
sketch2.addConstraint(Sketcher.Constraint("Tangent", 78, 2, 79, 2))
sketch2.addConstraint(Sketcher.Constraint("Tangent", 79, 1, 72, 1))
sketch2.addConstraint(Sketcher.Constraint("Horizontal", 0))
sketch2.addConstraint(Sketcher.Constraint("Vertical", 2))
sketch2.addConstraint(Sketcher.Constraint("Horizontal", 4))
sketch2.addConstraint(Sketcher.Constraint("Vertical", 6))
sketch2.addConstraint(Sketcher.Constraint("Vertical", 8))
sketch2.addConstraint(Sketcher.Constraint("Horizontal", 10))
sketch2.addConstraint(Sketcher.Constraint("Vertical", 12))
sketch2.addConstraint(Sketcher.Constraint("Horizontal", 14))
sketch2.addConstraint(Sketcher.Constraint("Vertical", 16))
sketch2.addConstraint(Sketcher.Constraint("Horizontal", 18))
sketch2.addConstraint(Sketcher.Constraint("Vertical", 20))
sketch2.addConstraint(Sketcher.Constraint("Horizontal", 22))
sketch2.addConstraint(Sketcher.Constraint("Vertical", 24))
sketch2.addConstraint(Sketcher.Constraint("Horizontal", 26))
sketch2.addConstraint(Sketcher.Constraint("Vertical", 28))
sketch2.addConstraint(Sketcher.Constraint("Horizontal", 30))
sketch2.addConstraint(Sketcher.Constraint("Vertical", 32))
sketch2.addConstraint(Sketcher.Constraint("Horizontal", 34))
sketch2.addConstraint(Sketcher.Constraint("Vertical", 36))
sketch2.addConstraint(Sketcher.Constraint("Horizontal", 38))
sketch2.addConstraint(Sketcher.Constraint("Vertical", 40))
sketch2.addConstraint(Sketcher.Constraint("Horizontal", 42))
sketch2.addConstraint(Sketcher.Constraint("Vertical", 44))
sketch2.addConstraint(Sketcher.Constraint("Horizontal", 46))
sketch2.addConstraint(Sketcher.Constraint("Vertical", 48))
sketch2.addConstraint(Sketcher.Constraint("Horizontal", 50))
sketch2.addConstraint(Sketcher.Constraint("Vertical", 52))
sketch2.addConstraint(Sketcher.Constraint("Horizontal", 54))
sketch2.addConstraint(Sketcher.Constraint("Vertical", 56))
sketch2.addConstraint(Sketcher.Constraint("Horizontal", 58))
sketch2.addConstraint(Sketcher.Constraint("Vertical", 60))
sketch2.addConstraint(Sketcher.Constraint("Horizontal", 62))
sketch2.addConstraint(Sketcher.Constraint("Vertical", 64))
sketch2.addConstraint(Sketcher.Constraint("Horizontal", 66))
sketch2.addConstraint(Sketcher.Constraint("Vertical", 68))
sketch2.addConstraint(Sketcher.Constraint("Horizontal", 70))
sketch2.addConstraint(Sketcher.Constraint("Vertical", 72))
sketch2.addConstraint(Sketcher.Constraint("Horizontal", 74))
sketch2.addConstraint(Sketcher.Constraint("Vertical", 76))
sketch2.addConstraint(Sketcher.Constraint("Horizontal", 78))
sketch2.addConstraint(Sketcher.Constraint("Equal", 1, 3))
sketch2.addConstraint(Sketcher.Constraint("Equal", 3, 5))
sketch2.addConstraint(Sketcher.Constraint("Equal", 5, 7))
sketch2.addConstraint(Sketcher.Constraint("Equal", 7, 9))
sketch2.addConstraint(Sketcher.Constraint("Equal", 9, 11))
sketch2.addConstraint(Sketcher.Constraint("Equal", 11, 13))
sketch2.addConstraint(Sketcher.Constraint("Equal", 13, 15))
sketch2.addConstraint(Sketcher.Constraint("Equal", 15, 17))
sketch2.addConstraint(Sketcher.Constraint("Equal", 17, 19))
sketch2.addConstraint(Sketcher.Constraint("Equal", 19, 21))
sketch2.addConstraint(Sketcher.Constraint("Equal", 21, 23))
sketch2.addConstraint(Sketcher.Constraint("Equal", 23, 25))
sketch2.addConstraint(Sketcher.Constraint("Equal", 25, 27))
sketch2.addConstraint(Sketcher.Constraint("Equal", 27, 29))
sketch2.addConstraint(Sketcher.Constraint("Equal", 29, 31))
sketch2.addConstraint(Sketcher.Constraint("Equal", 31, 33))
sketch2.addConstraint(Sketcher.Constraint("Equal", 33, 35))
sketch2.addConstraint(Sketcher.Constraint("Equal", 35, 37))
sketch2.addConstraint(Sketcher.Constraint("Equal", 37, 39))
sketch2.addConstraint(Sketcher.Constraint("Equal", 39, 41))
sketch2.addConstraint(Sketcher.Constraint("Equal", 41, 43))
sketch2.addConstraint(Sketcher.Constraint("Equal", 43, 45))
sketch2.addConstraint(Sketcher.Constraint("Equal", 45, 47))
sketch2.addConstraint(Sketcher.Constraint("Equal", 47, 49))
sketch2.addConstraint(Sketcher.Constraint("Equal", 49, 51))
sketch2.addConstraint(Sketcher.Constraint("Equal", 51, 53))
sketch2.addConstraint(Sketcher.Constraint("Equal", 53, 55))
sketch2.addConstraint(Sketcher.Constraint("Equal", 55, 57))
sketch2.addConstraint(Sketcher.Constraint("Equal", 57, 59))
sketch2.addConstraint(Sketcher.Constraint("Equal", 59, 61))
sketch2.addConstraint(Sketcher.Constraint("Equal", 61, 63))
sketch2.addConstraint(Sketcher.Constraint("Equal", 63, 65))
sketch2.addConstraint(Sketcher.Constraint("Equal", 65, 67))
sketch2.addConstraint(Sketcher.Constraint("Equal", 67, 69))
sketch2.addConstraint(Sketcher.Constraint("Equal", 69, 71))
sketch2.addConstraint(Sketcher.Constraint("Equal", 71, 73))
sketch2.addConstraint(Sketcher.Constraint("Equal", 73, 75))
sketch2.addConstraint(Sketcher.Constraint("Equal", 75, 77))
sketch2.addConstraint(Sketcher.Constraint("Equal", 77, 79))
sketch2.addConstraint(Sketcher.Constraint("Symmetric", 5, 3, 9, 3, -2))
sketch2.addConstraint(Sketcher.Constraint("Symmetric", 1, 3, 13, 3, -2))
sketch2.addConstraint(Sketcher.Constraint("Symmetric", 19, 3, 49, 3, -2))
sketch2.addConstraint(Sketcher.Constraint("Symmetric", 23, 3, 53, 3, -2))
sketch2.addConstraint(Sketcher.Constraint("Symmetric", 27, 3, 57, 3, -2))
sketch2.addConstraint(Sketcher.Constraint("Symmetric", 31, 3, 61, 3, -2))
sketch2.addConstraint(Sketcher.Constraint("Symmetric", 35, 3, 65, 3, -2))
sketch2.addConstraint(Sketcher.Constraint("Symmetric", 39, 3, 69, 3, -2))
sketch2.addConstraint(Sketcher.Constraint("Symmetric", 43, 3, 73, 3, -2))
sketch2.addConstraint(Sketcher.Constraint("Symmetric", 47, 3, 77, 3, -2))
sketch2.addConstraint(Sketcher.Constraint("Vertical", 15, 3, 17, 3))
sketch2.addConstraint(Sketcher.Constraint("Vertical", 13, 3, 19, 3))
sketch2.addConstraint(Sketcher.Constraint("Vertical", 23, 3, 25, 3))
sketch2.addConstraint(Sketcher.Constraint("Vertical", 21, 3, 27, 3))
sketch2.addConstraint(Sketcher.Constraint("Vertical", 31, 3, 33, 3))
sketch2.addConstraint(Sketcher.Constraint("Vertical", 29, 3, 35, 3))
sketch2.addConstraint(Sketcher.Constraint("Vertical", 39, 3, 41, 3))
sketch2.addConstraint(Sketcher.Constraint("Vertical", 37, 3, 43, 3))
sketch2.addConstraint(Sketcher.Constraint("Equal", 12, 16))
sketch2.addConstraint(Sketcher.Constraint("Equal", 20, 24))
sketch2.addConstraint(Sketcher.Constraint("Equal", 28, 32))
sketch2.addConstraint(Sketcher.Constraint("Equal", 36, 40))
sketch2.addConstraint(Sketcher.Constraint("Radius", 1, Q("2 mm")))
sketch2.addConstraint(Sketcher.Constraint("DistanceY", 2, 1, 2, 2, Q("4 mm")))
sketch2.addConstraint(Sketcher.Constraint("DistanceX", 0, 2, 0, 1, Q("33.5 mm")))
sketch2.addConstraint(Sketcher.Constraint("DistanceY", 1, 3, -1, 1, Q("13 mm")))
sketch2.addConstraint(Sketcher.Constraint("DistanceY", -1, 1, 17, 3, Q("3 mm")))
sketch2.addConstraint(Sketcher.Constraint("DistanceY", -1, 1, 25, 3, Q("15 mm")))
sketch2.addConstraint(Sketcher.Constraint("DistanceY", -1, 1, 33, 3, Q("27 mm")))
sketch2.addConstraint(Sketcher.Constraint("DistanceY", -1, 1, 41, 3, Q("39 mm")))
sketch2.addConstraint(Sketcher.Constraint("DistanceX", 1, 3, -1, 1, Q("39.25 mm")))
pocket1 = doc.addObject("PartDesign::Pocket", "Pocket")
body.addObject(pocket1)
pocket1.Profile = sketch2
pocket1.Length = 1.8
pocket1.Reversed = True

# Sketch on XZ plane
sketch3 = doc.addObject("Sketcher::SketchObject", "Sketch002")
body.addObject(sketch3)
sketch3.AttachmentSupport = (doc.XZ_Plane, [""])
sketch3.MapMode = "FlatFace"
sketch3.AttachmentOffset = App.Placement(V(0, 0, -1.8), App.Rotation())
add_polygon(sketch3, [(-1, -22.7), (-1, 46.8), (1, 46.8), (1, -22.7)])  # lines 0-3
sketch3.addConstraint(Sketcher.Constraint("Vertical", 0))
sketch3.addConstraint(Sketcher.Constraint("Horizontal", 1))
sketch3.addConstraint(Sketcher.Constraint("Vertical", 2))
sketch3.addConstraint(Sketcher.Constraint("Horizontal", 3))
sketch3.addConstraint(Sketcher.Constraint("DistanceX", 1, 1, 1, 2, Q("2 mm")))
sketch3.addConstraint(Sketcher.Constraint("DistanceX", 0, 2, -1, 1, Q("1 mm")))
sketch3.addConstraint(Sketcher.Constraint("DistanceY", 0, 1, 0, 2, Q("69.501767 mm")))
sketch3.addConstraint(Sketcher.Constraint("DistanceY", -1, 1, 0, 2, Q("46.81912 mm")))
pad2 = doc.addObject("PartDesign::Pad", "Pad001")
body.addObject(pad2)
pad2.Profile = sketch3
pad2.Length = 1
pad2.Reversed = True

doc.recompute()
